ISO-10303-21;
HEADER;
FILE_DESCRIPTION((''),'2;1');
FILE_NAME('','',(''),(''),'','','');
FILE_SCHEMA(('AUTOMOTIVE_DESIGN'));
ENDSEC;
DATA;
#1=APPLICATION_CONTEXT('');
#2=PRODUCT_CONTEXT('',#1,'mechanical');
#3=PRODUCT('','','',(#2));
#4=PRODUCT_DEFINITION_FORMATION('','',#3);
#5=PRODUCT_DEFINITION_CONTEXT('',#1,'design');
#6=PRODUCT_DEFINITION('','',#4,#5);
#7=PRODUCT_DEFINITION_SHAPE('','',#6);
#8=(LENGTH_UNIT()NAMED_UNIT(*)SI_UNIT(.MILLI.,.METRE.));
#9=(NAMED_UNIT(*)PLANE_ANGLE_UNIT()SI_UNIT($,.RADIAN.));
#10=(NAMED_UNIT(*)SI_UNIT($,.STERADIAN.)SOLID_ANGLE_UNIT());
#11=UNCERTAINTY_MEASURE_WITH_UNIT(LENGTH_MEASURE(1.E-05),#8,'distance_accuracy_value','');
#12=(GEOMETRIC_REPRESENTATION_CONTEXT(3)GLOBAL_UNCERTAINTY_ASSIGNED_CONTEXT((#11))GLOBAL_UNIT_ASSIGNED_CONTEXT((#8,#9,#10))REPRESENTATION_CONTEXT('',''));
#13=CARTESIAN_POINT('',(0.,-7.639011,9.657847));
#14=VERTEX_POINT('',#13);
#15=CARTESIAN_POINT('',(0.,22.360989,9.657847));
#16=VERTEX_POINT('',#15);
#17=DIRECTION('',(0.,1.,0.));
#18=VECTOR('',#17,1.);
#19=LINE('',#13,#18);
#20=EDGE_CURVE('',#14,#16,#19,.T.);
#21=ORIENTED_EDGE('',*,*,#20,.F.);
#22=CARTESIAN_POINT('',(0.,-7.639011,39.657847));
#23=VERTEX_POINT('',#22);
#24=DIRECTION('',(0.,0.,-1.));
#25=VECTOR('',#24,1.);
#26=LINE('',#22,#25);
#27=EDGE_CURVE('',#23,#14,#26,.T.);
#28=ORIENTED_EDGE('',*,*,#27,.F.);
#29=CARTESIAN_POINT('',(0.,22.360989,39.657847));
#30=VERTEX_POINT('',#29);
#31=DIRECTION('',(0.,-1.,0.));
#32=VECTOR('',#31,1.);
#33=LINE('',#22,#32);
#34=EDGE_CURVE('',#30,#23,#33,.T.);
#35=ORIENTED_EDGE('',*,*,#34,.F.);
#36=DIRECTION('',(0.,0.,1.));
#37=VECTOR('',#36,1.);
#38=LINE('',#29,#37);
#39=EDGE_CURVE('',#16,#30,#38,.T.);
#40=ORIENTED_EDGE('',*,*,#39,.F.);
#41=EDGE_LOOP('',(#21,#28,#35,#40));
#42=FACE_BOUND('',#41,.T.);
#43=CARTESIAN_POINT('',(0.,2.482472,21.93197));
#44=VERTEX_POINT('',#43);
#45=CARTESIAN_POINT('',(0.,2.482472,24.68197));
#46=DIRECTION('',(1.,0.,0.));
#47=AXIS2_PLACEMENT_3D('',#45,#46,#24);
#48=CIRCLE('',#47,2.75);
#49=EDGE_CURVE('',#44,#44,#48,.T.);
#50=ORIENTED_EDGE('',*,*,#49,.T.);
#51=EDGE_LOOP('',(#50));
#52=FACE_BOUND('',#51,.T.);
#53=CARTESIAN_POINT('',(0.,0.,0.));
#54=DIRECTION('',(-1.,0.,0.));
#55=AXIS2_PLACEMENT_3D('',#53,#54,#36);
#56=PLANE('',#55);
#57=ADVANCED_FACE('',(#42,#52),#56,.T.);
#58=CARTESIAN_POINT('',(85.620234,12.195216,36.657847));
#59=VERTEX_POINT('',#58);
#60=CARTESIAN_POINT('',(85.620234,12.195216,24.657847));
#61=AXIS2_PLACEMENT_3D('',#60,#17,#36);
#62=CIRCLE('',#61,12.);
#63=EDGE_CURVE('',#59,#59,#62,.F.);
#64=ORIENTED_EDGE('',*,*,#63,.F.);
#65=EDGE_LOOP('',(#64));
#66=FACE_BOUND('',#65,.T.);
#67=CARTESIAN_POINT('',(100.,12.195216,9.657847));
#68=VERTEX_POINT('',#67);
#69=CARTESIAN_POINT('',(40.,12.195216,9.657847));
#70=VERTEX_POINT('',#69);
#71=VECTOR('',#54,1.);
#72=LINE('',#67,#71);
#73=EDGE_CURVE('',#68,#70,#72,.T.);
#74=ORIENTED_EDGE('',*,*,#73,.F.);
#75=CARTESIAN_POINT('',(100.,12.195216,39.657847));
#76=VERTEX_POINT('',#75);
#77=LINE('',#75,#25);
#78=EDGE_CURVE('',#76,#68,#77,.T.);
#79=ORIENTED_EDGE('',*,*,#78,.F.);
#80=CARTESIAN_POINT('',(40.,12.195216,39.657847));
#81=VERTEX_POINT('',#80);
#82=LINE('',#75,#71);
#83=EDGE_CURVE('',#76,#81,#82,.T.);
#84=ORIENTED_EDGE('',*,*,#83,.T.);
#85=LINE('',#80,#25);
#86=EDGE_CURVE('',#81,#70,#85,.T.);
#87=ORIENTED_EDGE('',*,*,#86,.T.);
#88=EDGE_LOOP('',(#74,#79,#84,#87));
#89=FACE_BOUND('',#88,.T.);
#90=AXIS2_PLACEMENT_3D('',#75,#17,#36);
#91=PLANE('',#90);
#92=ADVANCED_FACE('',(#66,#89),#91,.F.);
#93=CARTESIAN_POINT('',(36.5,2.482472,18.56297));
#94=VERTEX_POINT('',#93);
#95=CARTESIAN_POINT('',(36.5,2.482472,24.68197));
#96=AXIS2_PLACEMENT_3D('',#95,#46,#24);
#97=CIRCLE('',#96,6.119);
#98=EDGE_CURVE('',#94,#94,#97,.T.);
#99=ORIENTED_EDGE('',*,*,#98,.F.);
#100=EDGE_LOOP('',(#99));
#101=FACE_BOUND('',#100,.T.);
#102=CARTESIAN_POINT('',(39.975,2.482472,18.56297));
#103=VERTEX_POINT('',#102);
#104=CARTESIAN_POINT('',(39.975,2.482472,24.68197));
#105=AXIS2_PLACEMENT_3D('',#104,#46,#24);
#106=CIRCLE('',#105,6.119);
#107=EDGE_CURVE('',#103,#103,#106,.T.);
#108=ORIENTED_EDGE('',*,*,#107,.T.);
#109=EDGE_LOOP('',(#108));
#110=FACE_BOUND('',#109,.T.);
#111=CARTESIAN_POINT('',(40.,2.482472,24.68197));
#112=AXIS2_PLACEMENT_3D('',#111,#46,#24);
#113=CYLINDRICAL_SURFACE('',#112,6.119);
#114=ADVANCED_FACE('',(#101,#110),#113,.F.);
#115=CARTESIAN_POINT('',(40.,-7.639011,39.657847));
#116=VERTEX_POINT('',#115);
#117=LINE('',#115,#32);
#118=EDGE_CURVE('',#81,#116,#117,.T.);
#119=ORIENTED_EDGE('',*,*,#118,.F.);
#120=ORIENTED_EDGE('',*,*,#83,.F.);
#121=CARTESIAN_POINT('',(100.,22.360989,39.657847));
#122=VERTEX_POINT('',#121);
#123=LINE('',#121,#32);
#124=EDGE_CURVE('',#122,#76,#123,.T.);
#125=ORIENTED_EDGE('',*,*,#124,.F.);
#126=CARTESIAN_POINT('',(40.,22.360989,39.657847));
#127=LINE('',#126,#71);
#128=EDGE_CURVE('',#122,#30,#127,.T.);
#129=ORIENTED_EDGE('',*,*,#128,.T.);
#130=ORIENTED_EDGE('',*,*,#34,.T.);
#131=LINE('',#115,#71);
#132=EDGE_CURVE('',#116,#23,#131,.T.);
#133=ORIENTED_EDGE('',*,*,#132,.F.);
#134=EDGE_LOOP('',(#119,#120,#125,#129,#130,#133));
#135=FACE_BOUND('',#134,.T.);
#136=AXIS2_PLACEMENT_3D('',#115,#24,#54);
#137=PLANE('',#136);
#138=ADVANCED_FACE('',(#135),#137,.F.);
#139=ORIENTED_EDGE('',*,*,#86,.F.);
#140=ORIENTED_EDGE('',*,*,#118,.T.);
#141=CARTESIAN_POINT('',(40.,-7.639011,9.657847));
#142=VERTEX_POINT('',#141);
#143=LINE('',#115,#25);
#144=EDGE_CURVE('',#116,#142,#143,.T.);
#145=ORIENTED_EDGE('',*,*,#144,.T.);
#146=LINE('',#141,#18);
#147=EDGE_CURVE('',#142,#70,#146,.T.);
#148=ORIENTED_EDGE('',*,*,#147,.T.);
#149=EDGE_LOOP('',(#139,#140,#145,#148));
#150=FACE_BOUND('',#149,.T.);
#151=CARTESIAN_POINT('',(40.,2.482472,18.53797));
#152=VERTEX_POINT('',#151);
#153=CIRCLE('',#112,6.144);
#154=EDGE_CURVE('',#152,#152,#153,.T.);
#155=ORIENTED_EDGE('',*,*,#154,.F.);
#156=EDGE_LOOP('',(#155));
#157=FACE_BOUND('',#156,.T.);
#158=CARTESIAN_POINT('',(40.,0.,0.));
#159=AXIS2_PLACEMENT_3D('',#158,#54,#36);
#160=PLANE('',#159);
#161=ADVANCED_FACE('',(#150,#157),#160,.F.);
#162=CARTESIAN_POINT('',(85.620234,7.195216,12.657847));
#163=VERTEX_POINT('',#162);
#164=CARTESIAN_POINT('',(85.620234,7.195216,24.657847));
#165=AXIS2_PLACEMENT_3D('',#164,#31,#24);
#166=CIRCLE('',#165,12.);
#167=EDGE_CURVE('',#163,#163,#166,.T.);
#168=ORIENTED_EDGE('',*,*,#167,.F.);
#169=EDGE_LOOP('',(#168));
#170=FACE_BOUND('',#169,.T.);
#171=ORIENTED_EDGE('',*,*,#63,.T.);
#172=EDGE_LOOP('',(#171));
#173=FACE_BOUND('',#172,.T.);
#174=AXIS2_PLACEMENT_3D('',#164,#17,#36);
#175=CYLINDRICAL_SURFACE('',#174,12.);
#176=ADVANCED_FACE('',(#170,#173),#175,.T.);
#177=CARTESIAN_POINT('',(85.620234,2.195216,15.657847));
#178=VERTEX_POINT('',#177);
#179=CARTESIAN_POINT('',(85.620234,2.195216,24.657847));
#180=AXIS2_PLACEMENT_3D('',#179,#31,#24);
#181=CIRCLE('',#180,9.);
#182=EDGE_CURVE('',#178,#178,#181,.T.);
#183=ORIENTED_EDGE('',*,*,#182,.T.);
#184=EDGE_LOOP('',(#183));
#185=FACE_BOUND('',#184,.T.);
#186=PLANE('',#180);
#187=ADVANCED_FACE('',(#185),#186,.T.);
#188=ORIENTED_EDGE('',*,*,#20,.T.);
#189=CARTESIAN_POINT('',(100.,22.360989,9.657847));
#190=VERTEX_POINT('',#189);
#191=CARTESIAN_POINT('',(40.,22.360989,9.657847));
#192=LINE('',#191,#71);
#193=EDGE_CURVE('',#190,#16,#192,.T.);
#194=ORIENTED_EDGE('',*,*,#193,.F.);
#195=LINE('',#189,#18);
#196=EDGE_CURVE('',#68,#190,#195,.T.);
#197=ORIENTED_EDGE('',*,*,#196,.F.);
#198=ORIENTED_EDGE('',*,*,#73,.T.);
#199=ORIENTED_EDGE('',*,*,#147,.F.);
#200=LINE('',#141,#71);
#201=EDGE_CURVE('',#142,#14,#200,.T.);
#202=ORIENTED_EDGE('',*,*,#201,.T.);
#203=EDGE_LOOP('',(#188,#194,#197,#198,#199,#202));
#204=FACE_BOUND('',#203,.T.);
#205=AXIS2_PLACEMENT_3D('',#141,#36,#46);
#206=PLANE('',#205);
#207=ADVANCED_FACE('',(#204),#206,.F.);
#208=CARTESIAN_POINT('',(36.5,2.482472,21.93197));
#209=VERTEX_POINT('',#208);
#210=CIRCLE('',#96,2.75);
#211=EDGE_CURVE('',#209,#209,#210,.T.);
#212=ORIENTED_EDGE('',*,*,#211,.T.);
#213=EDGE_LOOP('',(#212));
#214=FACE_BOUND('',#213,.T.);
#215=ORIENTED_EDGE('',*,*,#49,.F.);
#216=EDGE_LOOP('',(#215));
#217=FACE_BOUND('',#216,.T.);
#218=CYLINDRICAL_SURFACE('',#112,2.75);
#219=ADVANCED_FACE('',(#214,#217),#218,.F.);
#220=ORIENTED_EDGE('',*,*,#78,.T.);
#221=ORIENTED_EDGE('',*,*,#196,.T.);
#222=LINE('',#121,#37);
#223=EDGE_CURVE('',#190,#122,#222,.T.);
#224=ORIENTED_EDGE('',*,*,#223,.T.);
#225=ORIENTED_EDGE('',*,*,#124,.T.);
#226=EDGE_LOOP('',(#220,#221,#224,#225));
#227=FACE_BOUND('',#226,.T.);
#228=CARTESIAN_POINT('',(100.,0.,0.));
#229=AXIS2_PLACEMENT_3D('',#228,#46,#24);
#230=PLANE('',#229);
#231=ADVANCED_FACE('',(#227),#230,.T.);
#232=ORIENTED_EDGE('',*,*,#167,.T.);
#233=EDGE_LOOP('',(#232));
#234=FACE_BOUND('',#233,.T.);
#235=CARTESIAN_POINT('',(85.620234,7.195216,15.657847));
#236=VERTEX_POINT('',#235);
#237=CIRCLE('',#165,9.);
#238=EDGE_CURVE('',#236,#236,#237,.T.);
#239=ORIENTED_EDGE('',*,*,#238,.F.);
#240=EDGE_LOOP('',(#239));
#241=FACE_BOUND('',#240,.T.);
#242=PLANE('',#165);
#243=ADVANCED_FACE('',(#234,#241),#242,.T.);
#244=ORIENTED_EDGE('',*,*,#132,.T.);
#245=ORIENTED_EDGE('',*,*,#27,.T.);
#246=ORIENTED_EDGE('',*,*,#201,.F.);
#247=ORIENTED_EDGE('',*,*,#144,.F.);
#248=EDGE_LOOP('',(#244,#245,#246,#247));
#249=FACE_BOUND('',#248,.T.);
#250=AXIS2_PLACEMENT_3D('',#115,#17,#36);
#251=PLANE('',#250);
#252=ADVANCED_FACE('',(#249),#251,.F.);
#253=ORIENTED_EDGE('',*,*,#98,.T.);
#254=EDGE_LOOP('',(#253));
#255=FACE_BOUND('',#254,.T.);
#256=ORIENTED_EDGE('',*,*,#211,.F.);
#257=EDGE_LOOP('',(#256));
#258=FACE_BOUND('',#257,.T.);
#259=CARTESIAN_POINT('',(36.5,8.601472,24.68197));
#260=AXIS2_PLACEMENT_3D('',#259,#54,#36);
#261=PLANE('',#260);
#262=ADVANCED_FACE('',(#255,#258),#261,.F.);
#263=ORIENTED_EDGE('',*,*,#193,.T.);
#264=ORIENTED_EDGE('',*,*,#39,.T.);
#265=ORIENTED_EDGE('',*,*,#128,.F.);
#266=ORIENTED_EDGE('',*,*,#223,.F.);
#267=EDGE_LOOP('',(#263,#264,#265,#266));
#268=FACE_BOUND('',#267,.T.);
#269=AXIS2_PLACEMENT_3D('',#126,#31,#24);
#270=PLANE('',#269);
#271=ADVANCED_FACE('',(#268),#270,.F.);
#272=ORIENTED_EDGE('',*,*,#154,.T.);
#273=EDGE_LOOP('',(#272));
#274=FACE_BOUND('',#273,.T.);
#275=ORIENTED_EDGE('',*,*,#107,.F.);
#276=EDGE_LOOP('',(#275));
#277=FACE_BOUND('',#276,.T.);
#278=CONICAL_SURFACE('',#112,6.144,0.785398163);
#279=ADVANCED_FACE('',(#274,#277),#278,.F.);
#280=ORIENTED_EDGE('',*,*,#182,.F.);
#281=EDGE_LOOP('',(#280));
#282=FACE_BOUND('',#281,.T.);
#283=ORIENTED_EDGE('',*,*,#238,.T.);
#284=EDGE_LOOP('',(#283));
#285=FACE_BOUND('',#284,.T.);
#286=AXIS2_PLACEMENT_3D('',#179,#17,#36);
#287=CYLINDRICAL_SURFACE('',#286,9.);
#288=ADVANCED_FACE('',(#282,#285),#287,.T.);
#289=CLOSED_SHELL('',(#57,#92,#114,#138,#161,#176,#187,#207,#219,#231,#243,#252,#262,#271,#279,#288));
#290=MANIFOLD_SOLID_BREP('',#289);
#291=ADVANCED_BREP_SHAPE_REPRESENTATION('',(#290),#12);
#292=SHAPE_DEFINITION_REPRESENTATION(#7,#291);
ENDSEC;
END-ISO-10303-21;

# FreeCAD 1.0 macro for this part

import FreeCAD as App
import Part
import Sketcher
from FreeCAD import Vector
Q = App.Units.Quantity


def add_polygon(sketch, points):
    """Adds a closed chain of lines whose ends are joined by coincident constraints."""
    first, n = sketch.GeometryCount, len(points)
    for a, b in zip(points, points[1:] + points[:1]):
        sketch.addGeometry(Part.LineSegment(App.Vector(*a, 0), App.Vector(*b, 0)), False)
    for i in range(n):
        sketch.addConstraint(Sketcher.Constraint("Coincident", first + i, 2, first + (i + 1) % n, 1))

doc = App.newDocument("Part")
body = doc.addObject("PartDesign::Body", "Body")

sketch1 = body.newObject("Sketcher::SketchObject", "Sketch")
sketch1.AttachmentSupport = (doc.getObject("YZ_Plane"), [""])
sketch1.MapMode = "FlatFace"
add_polygon(sketch1, [(22, 40), (-8, 40), (-8, 10), (22, 10)])
sketch1.addConstraint(Sketcher.Constraint("Horizontal", 0))
sketch1.addConstraint(Sketcher.Constraint("Vertical", 1))
sketch1.addConstraint(Sketcher.Constraint("Horizontal", 2))
sketch1.addConstraint(Sketcher.Constraint("Vertical", 3))
sketch1.addConstraint(Sketcher.Constraint("Equal", 2, 1))
sketch1.addConstraint(Sketcher.Constraint("DistanceX", 0, 2, 0, 1, 30.0))
sketch1.addConstraint(Sketcher.Constraint("DistanceX", 0, 2, -1, 1, 7.639011))
sketch1.addConstraint(Sketcher.Constraint("DistanceY", -1, 1, 0, 2, 39.657847))
pad1 = body.newObject("PartDesign::Pad", "Pad")
pad1.Profile = sketch1
pad1.Length = 40

sketch2 = body.newObject("Sketcher::SketchObject", "Sketch001")
sketch2.AttachmentSupport = (doc.getObject("YZ_Plane"), [""])
sketch2.MapMode = "FlatFace"
sketch2.AttachmentOffset = App.Placement(Vector(0, 0, 40), App.Rotation())
add_polygon(sketch2, [(22, 40), (12, 40), (12, 10), (22, 10)])
sketch2.addConstraint(Sketcher.Constraint("Horizontal", 0))
sketch2.addConstraint(Sketcher.Constraint("Vertical", 1))
sketch2.addConstraint(Sketcher.Constraint("Horizontal", 2))
sketch2.addConstraint(Sketcher.Constraint("Vertical", 3))
sketch2.addConstraint(Sketcher.Constraint("DistanceY", 1, 2, 1, 1, 30.0))
sketch2.addConstraint(Sketcher.Constraint("DistanceX", 0, 2, 0, 1, 10.165772))
sketch2.addConstraint(Sketcher.Constraint("DistanceX", -1, 1, 2, 2, 22.360989))
sketch2.addConstraint(Sketcher.Constraint("DistanceY", -1, 1, 0, 2, 39.657847))
pad2 = body.newObject("PartDesign::Pad", "Pad001")
pad2.Profile = sketch2
pad2.Length = 60

sketch3 = body.newObject("Sketcher::SketchObject", "Sketch002")
sketch3.AttachmentSupport = (doc.getObject("XZ_Plane"), [""])
sketch3.MapMode = "FlatFace"
sketch3.AttachmentOffset = App.Placement(Vector(0, 0, -12.195216), App.Rotation())
sketch3.addGeometry(Part.Circle(Vector(86, 25, 0), Vector(0, 0, 1), 12), False)
sketch3.addConstraint(Sketcher.Constraint("Diameter", 0, 24.0))
sketch3.addConstraint(Sketcher.Constraint("DistanceX", -1, 1, 0, 3, 85.620234))
sketch3.addConstraint(Sketcher.Constraint("DistanceY", -1, 1, 0, 3, 24.657847))
pad3 = body.newObject("PartDesign::Pad", "Pad002")
pad3.Profile = sketch3
pad3.Length = 5

sketch4 = body.newObject("Sketcher::SketchObject", "Sketch003")
sketch4.AttachmentSupport = (doc.getObject("XZ_Plane"), [""])
sketch4.MapMode = "FlatFace"
sketch4.AttachmentOffset = App.Placement(Vector(0, 0, -7.195216), App.Rotation())
sketch4.addGeometry(Part.Circle(Vector(86, 25, 0), Vector(0, 0, 1), 9), False)
sketch4.addConstraint(Sketcher.Constraint("Diameter", 0, 18.0))
sketch4.addConstraint(Sketcher.Constraint("DistanceX", -1, 1, 0, 3, 85.620234))
sketch4.addConstraint(Sketcher.Constraint("DistanceY", -1, 1, 0, 3, 24.657847))
pad4 = body.newObject("PartDesign::Pad", "Pad003")
pad4.Profile = sketch4
pad4.Length = 5

sketch5 = body.newObject("Sketcher::SketchObject", "Sketch004")
sketch5.AttachmentSupport = (doc.getObject("XZ_Plane"), [""])
sketch5.MapMode = "FlatFace"
sketch5.AttachmentOffset = App.Placement(Vector(0, 0, -2.482472), App.Rotation())
add_polygon(sketch5, [(0, 24.68197), (40, 24.68197), (40, 18.53797), (39.975, 18.56297), (36.5, 18.56297), (36.5, 21.93197), (0, 21.93197)])
sketch5.addGeometry(Part.LineSegment(Vector(40, 24.68197, 0), Vector(0, 24.68197, 0)), True)
sketch5.addConstraint(Sketcher.Constraint("Horizontal", 0))
sketch5.addConstraint(Sketcher.Constraint("Vertical", 1))
sketch5.addConstraint(Sketcher.Constraint("Horizontal", 3))
sketch5.addConstraint(Sketcher.Constraint("Vertical", 4))
sketch5.addConstraint(Sketcher.Constraint("Horizontal", 5))
sketch5.addConstraint(Sketcher.Constraint("Vertical", 6))
sketch5.addConstraint(Sketcher.Constraint("Horizontal", 7))
sketch5.addConstraint(Sketcher.Constraint("Coincident", 7, 1, 0, 2))
sketch5.addConstraint(Sketcher.Constraint("PointOnObject", 5, 2, -2))
sketch5.addConstraint(Sketcher.Constraint("PointOnObject", 7, 2, -2))
sketch5.addConstraint(Sketcher.Constraint("DistanceX", 0, 1, 0, 2, 40.0))
sketch5.addConstraint(Sketcher.Constraint("Angle", 2, Q("135 deg")))
sketch5.addConstraint(Sketcher.Constraint("DistanceX", 5, 2, 5, 1, 36.5))
sketch5.addConstraint(Sketcher.Constraint("DistanceY", 6, 1, 6, 2, 2.75))
sketch5.addConstraint(Sketcher.Constraint("DistanceX", 3, 2, 3, 1, 3.475))
sketch5.addConstraint(Sketcher.Constraint("DistanceY", 1, 2, 1, 1, 6.144))
sketch5.addConstraint(Sketcher.Constraint("DistanceY", -1, 1, 0, 2, 24.68197))
groove = body.newObject("PartDesign::Groove", "Groove")
groove.Profile = sketch5
groove.ReferenceAxis = (sketch5, ["Axis0"])
groove.Angle = 360

doc.recompute()
